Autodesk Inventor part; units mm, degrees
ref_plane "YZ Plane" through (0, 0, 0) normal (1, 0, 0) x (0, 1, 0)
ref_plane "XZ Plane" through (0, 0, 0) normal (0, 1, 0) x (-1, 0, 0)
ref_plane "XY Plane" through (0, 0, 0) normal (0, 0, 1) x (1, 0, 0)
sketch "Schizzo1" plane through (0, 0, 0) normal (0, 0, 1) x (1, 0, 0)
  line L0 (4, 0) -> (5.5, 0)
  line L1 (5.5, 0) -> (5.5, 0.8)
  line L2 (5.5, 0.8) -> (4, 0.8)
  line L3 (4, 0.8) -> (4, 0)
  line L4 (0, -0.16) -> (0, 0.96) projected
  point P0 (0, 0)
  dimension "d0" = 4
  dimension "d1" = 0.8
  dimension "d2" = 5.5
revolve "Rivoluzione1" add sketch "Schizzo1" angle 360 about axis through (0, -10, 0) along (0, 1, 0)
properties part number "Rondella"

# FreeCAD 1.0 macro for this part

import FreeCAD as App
import Part
import Sketcher
Q = App.Units.Quantity

doc = App.newDocument("Part")
params = doc.addObject("Spreadsheet::Sheet", "Params")
for row, (alias, value) in enumerate([
    ("sketch1_height", "0.8 mm"),
    ("revolution_angle", "360 deg"),
], start=1):
    params.set(f"A{row}", alias)
    params.set(f"B{row}", "=" + value)
    params.setAlias(f"B{row}", alias)

body = doc.addObject("PartDesign::Body", "Body")

# Sketch on XY plane
sketch1 = body.newObject("Sketcher::SketchObject", "Sketch")
sketch1.AttachmentSupport = (doc.getObject("XY_Plane"), [""])
sketch1.MapMode = "FlatFace"
sketch1.addGeometry(Part.LineSegment(App.Vector(4, 0.8, 0), App.Vector(4, 0, 0)), False)
sketch1.addGeometry(Part.LineSegment(App.Vector(4, 0, 0), App.Vector(5.5, 0, 0)), False)
sketch1.addGeometry(Part.LineSegment(App.Vector(5.5, 0, 0), App.Vector(5.5, 0.8, 0)), False)
sketch1.addGeometry(Part.LineSegment(App.Vector(5.5, 0.8, 0), App.Vector(4, 0.8, 0)), False)
sketch1.addConstraint(Sketcher.Constraint("Coincident", 0, 2, 1, 1))
sketch1.addConstraint(Sketcher.Constraint("Coincident", 1, 2, 2, 1))
sketch1.addConstraint(Sketcher.Constraint("Coincident", 2, 2, 3, 1))
sketch1.addConstraint(Sketcher.Constraint("Coincident", 3, 2, 0, 1))
sketch1.addConstraint(Sketcher.Constraint("Vertical", 0))
sketch1.addConstraint(Sketcher.Constraint("Horizontal", 1))
sketch1.addConstraint(Sketcher.Constraint("Vertical", 2))
sketch1.addConstraint(Sketcher.Constraint("Horizontal", 3))
sketch1.addConstraint(Sketcher.Constraint("PointOnObject", 0, 2, -1))
sketch1.addConstraint(Sketcher.Constraint("DistanceY", 0, 2, 0, 1, Q("0.8 mm")))
sketch1.addConstraint(Sketcher.Constraint("DistanceX", -1, 1, 0, 2, Q("4 mm")))
sketch1.addConstraint(Sketcher.Constraint("DistanceX", -1, 1, 1, 2, Q("5.5 mm")))
sketch1.setExpression("Constraints[9]", "Params.sketch1_height")
revolution = body.newObject("PartDesign::Revolution", "Revolution")
revolution.Profile = sketch1
revolution.ReferenceAxis = (sketch1, ["V_Axis"])
revolution.setExpression("Angle", "Params.revolution_angle")

doc.recompute()
